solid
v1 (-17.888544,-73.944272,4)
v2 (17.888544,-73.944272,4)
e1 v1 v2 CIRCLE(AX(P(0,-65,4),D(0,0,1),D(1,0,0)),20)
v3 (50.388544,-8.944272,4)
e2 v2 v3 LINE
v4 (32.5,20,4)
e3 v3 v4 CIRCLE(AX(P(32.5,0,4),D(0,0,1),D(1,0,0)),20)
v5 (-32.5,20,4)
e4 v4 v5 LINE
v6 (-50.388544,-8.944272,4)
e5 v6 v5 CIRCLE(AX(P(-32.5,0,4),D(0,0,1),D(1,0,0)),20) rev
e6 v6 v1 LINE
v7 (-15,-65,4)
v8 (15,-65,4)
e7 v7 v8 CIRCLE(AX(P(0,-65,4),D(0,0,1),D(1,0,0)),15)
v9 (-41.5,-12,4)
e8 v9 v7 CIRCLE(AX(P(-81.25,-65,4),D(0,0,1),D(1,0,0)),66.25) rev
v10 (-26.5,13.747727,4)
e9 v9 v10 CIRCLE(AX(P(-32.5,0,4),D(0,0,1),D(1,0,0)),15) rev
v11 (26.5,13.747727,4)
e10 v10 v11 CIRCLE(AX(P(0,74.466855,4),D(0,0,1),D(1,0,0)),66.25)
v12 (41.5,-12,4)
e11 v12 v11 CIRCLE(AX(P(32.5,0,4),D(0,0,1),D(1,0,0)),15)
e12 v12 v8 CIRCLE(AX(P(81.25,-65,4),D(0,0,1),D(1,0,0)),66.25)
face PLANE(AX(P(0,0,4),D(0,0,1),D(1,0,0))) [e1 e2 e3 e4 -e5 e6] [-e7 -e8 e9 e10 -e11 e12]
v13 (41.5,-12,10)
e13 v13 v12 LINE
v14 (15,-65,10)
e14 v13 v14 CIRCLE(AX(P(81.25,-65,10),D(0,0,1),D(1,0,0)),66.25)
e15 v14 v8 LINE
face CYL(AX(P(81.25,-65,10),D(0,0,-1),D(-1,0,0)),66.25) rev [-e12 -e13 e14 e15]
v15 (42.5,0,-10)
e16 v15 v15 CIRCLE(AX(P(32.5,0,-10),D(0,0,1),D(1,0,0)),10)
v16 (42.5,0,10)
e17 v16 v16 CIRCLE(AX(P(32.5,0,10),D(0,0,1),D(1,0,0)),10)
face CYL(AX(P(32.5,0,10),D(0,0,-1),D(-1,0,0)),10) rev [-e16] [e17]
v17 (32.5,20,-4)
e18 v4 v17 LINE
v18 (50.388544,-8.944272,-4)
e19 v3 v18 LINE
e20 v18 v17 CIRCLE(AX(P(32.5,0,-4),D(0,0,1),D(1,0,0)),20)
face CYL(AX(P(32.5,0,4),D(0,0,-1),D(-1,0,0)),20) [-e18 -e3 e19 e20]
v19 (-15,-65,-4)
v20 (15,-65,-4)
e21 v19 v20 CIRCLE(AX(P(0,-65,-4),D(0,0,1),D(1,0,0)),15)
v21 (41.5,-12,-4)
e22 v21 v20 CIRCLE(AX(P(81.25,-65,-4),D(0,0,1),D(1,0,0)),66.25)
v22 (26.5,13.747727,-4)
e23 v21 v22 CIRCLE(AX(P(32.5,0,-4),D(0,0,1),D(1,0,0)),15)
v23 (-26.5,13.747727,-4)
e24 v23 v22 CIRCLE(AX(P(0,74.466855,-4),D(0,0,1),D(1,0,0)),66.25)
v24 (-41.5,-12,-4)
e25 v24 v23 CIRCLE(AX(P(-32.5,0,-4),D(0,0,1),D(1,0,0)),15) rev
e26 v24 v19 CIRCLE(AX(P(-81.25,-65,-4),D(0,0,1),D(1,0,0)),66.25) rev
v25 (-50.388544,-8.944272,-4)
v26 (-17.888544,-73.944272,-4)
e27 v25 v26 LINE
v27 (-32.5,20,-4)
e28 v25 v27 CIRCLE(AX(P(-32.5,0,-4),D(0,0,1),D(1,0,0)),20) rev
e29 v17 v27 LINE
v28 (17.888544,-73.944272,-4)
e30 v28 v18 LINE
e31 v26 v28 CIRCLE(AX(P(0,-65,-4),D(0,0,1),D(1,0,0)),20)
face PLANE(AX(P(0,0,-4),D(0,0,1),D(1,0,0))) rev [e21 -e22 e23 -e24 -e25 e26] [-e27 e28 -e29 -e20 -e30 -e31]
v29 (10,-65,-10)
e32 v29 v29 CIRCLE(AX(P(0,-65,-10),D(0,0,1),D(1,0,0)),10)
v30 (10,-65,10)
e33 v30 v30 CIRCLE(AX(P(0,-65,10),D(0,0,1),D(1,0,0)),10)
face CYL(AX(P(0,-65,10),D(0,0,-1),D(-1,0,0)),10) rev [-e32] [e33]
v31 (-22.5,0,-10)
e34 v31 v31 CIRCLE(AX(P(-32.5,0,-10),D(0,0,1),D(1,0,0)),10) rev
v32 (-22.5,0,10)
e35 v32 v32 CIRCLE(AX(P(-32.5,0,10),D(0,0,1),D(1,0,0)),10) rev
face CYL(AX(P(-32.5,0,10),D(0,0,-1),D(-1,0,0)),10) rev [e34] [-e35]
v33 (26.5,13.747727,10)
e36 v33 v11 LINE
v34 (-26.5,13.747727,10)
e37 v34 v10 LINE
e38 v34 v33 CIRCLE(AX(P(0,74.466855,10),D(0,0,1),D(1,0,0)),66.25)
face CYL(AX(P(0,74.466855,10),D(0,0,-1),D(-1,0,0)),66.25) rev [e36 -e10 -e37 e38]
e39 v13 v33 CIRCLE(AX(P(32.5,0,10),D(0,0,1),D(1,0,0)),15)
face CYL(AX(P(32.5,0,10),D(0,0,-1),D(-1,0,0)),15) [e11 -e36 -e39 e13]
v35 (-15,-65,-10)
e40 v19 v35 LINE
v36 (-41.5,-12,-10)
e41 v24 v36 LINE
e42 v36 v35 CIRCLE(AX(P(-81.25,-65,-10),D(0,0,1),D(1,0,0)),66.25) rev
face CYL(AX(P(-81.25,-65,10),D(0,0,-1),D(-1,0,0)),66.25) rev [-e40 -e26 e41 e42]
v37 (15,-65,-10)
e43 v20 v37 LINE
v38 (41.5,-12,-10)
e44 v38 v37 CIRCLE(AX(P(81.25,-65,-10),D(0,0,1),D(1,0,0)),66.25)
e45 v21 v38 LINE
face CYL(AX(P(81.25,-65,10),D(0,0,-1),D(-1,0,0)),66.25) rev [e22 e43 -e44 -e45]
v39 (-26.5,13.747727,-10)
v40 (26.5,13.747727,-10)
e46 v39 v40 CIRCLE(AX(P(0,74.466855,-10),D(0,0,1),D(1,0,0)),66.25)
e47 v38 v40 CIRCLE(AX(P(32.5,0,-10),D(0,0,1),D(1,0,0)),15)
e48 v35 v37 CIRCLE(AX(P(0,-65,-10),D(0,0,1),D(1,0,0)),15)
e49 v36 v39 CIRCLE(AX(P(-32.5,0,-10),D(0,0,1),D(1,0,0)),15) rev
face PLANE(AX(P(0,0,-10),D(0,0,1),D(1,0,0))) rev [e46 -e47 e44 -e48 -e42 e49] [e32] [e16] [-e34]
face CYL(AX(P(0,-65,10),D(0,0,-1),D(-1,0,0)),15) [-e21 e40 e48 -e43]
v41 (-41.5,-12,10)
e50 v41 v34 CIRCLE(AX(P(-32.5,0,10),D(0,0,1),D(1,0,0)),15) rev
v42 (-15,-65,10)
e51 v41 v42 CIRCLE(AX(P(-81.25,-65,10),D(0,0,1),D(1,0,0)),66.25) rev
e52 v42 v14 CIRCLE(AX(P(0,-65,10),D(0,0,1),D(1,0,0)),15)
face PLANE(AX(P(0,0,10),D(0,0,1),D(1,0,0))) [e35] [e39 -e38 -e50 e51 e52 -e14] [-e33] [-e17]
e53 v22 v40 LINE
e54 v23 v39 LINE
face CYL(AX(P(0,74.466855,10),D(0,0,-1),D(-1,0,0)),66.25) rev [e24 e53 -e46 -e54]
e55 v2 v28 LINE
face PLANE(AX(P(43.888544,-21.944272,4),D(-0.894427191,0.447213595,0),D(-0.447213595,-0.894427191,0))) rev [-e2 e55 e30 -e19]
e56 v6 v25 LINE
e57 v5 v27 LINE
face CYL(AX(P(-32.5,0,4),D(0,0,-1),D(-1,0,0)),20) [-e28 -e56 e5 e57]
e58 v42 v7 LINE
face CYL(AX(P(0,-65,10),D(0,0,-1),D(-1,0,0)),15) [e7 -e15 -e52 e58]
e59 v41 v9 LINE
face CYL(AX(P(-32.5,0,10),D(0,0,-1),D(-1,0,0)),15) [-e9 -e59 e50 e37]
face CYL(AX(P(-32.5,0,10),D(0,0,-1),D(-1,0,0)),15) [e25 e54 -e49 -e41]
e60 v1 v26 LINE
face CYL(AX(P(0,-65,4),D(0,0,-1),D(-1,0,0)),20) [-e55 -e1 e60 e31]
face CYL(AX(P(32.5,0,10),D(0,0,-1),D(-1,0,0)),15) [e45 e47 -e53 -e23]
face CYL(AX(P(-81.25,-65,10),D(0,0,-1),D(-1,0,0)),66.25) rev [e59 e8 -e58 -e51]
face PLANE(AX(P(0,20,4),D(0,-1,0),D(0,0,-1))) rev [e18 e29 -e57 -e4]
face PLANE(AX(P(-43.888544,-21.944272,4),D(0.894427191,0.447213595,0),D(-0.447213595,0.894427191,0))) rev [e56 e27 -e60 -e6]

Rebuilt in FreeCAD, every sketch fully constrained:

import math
import FreeCAD as App
import Part
import Sketcher
Q = App.Units.Quantity

doc = App.newDocument("Part")
body = doc.addObject("PartDesign::Body", "Body")

sketch1 = body.newObject("Sketcher::SketchObject", "Sketch")
sketch1.AttachmentSupport = (doc.getObject("XY_Plane"), [""])
sketch1.MapMode = "FlatFace"
sketch1.addGeometry(Part.ArcOfCircle(Part.Circle(App.Vector(81, -65, 0), App.Vector(0, 0, 1), 66), math.radians(127), math.radians(180)), False)
sketch1.addGeometry(Part.ArcOfCircle(Part.Circle(App.Vector(32, 0, 0), App.Vector(0, 0, 1), 15), math.radians(-53), math.radians(114)), False)
sketch1.addGeometry(Part.ArcOfCircle(Part.Circle(App.Vector(0, 74, 0), App.Vector(0, 0, 1), 66), math.radians(-114), math.radians(-66)), False)
sketch1.addGeometry(Part.ArcOfCircle(Part.Circle(App.Vector(-32, 0, 0), App.Vector(0, 0, 1), 15), math.radians(66), math.radians(233)), False)
sketch1.addGeometry(Part.ArcOfCircle(Part.Circle(App.Vector(-81, -65, 0), App.Vector(0, 0, 1), 66), math.radians(0), math.radians(53)), False)
sketch1.addGeometry(Part.ArcOfCircle(Part.Circle(App.Vector(0, -65, 0), App.Vector(0, 0, 1), 15), math.radians(180), math.radians(360)), False)
sketch1.addGeometry(Part.Circle(App.Vector(-32, 0, 0), App.Vector(0, 0, 1), 10), False)
sketch1.addGeometry(Part.Circle(App.Vector(32, 0, 0), App.Vector(0, 0, 1), 10), False)
sketch1.addGeometry(Part.Circle(App.Vector(0, -65, 0), App.Vector(0, 0, 1), 10), False)
sketch1.addConstraint(Sketcher.Constraint("Tangent", 0, 1, 1, 1))
sketch1.addConstraint(Sketcher.Constraint("Tangent", 1, 2, 2, 2))
sketch1.addConstraint(Sketcher.Constraint("Tangent", 2, 1, 3, 1))
sketch1.addConstraint(Sketcher.Constraint("Tangent", 3, 2, 4, 2))
sketch1.addConstraint(Sketcher.Constraint("Tangent", 4, 1, 5, 1))
sketch1.addConstraint(Sketcher.Constraint("Tangent", 5, 2, 0, 2))
sketch1.addConstraint(Sketcher.Constraint("Coincident", 6, 3, 3, 3))
sketch1.addConstraint(Sketcher.Constraint("Coincident", 7, 3, 1, 3))
sketch1.addConstraint(Sketcher.Constraint("Coincident", 8, 3, 5, 3))
sketch1.addConstraint(Sketcher.Constraint("Equal", 0, 2))
sketch1.addConstraint(Sketcher.Constraint("Equal", 1, 3))
sketch1.addConstraint(Sketcher.Constraint("Equal", 2, 4))
sketch1.addConstraint(Sketcher.Constraint("Equal", 3, 5))
sketch1.addConstraint(Sketcher.Constraint("Equal", 6, 7))
sketch1.addConstraint(Sketcher.Constraint("Equal", 7, 8))
sketch1.addConstraint(Sketcher.Constraint("Symmetric", 1, 3, 3, 3, -1, 1))
sketch1.addConstraint(Sketcher.Constraint("Symmetric", 0, 3, 4, 3, -2))
sketch1.addConstraint(Sketcher.Constraint("Horizontal", 4, 3, 5, 3))
sketch1.addConstraint(Sketcher.Constraint("Diameter", 6, Q("20 mm")))
sketch1.addConstraint(Sketcher.Constraint("Radius", 1, Q("15 mm")))
sketch1.addConstraint(Sketcher.Constraint("Radius", 0, Q("66.25 mm")))
sketch1.addConstraint(Sketcher.Constraint("DistanceY", 0, 3, -1, 1, Q("65 mm")))
pad1 = body.newObject("PartDesign::Pad", "Pad")
pad1.Profile = sketch1
pad1.Length = 20
pad1.Midplane = True

sketch2 = body.newObject("Sketcher::SketchObject", "Sketch001")
sketch2.AttachmentSupport = (doc.getObject("XY_Plane"), [""])
sketch2.MapMode = "FlatFace"
sketch2.addGeometry(Part.ArcOfCircle(Part.Circle(App.Vector(-32, 0, 0), App.Vector(0, 0, 1), 20), math.radians(90), math.radians(207)), False)
sketch2.addGeometry(Part.LineSegment(App.Vector(-50, -9, 0), App.Vector(-18, -74, 0)), False)
sketch2.addGeometry(Part.ArcOfCircle(Part.Circle(App.Vector(0, -65, 0), App.Vector(0, 0, 1), 20), math.radians(-153), math.radians(-27)), False)
sketch2.addGeometry(Part.LineSegment(App.Vector(18, -74, 0), App.Vector(50, -9, 0)), False)
sketch2.addGeometry(Part.ArcOfCircle(Part.Circle(App.Vector(32, 0, 0), App.Vector(0, 0, 1), 20), math.radians(-27), math.radians(90)), False)
sketch2.addGeometry(Part.LineSegment(App.Vector(32, 20, 0), App.Vector(-32, 20, 0)), False)
sketch2.addGeometry(Part.ArcOfCircle(Part.Circle(App.Vector(0, 74, 0), App.Vector(0, 0, 1), 66), math.radians(-114), math.radians(-66)), False)
sketch2.addGeometry(Part.ArcOfCircle(Part.Circle(App.Vector(32, 0, 0), App.Vector(0, 0, 1), 15), math.radians(-53), math.radians(114)), False)
sketch2.addGeometry(Part.ArcOfCircle(Part.Circle(App.Vector(81, -65, 0), App.Vector(0, 0, 1), 66), math.radians(127), math.radians(180)), False)
sketch2.addGeometry(Part.ArcOfCircle(Part.Circle(App.Vector(0, -65, 0), App.Vector(0, 0, 1), 15), math.radians(180), math.radians(360)), False)
sketch2.addGeometry(Part.ArcOfCircle(Part.Circle(App.Vector(-81, -65, 0), App.Vector(0, 0, 1), 66), math.radians(0), math.radians(53)), False)
sketch2.addGeometry(Part.ArcOfCircle(Part.Circle(App.Vector(-32, 0, 0), App.Vector(0, 0, 1), 15), math.radians(66), math.radians(233)), False)
sketch2.addConstraint(Sketcher.Constraint("Tangent", 0, 2, 1, 1))
sketch2.addConstraint(Sketcher.Constraint("Tangent", 1, 2, 2, 1))
sketch2.addConstraint(Sketcher.Constraint("Tangent", 2, 2, 3, 1))
sketch2.addConstraint(Sketcher.Constraint("Tangent", 3, 2, 4, 1))
sketch2.addConstraint(Sketcher.Constraint("Tangent", 4, 2, 5, 1))
sketch2.addConstraint(Sketcher.Constraint("Tangent", 5, 2, 0, 1))
sketch2.addConstraint(Sketcher.Constraint("Tangent", 6, 2, 7, 2))
sketch2.addConstraint(Sketcher.Constraint("Tangent", 7, 1, 8, 1))
sketch2.addConstraint(Sketcher.Constraint("Tangent", 8, 2, 9, 2))
sketch2.addConstraint(Sketcher.Constraint("Tangent", 9, 1, 10, 1))
sketch2.addConstraint(Sketcher.Constraint("Tangent", 10, 2, 11, 2))
sketch2.addConstraint(Sketcher.Constraint("Tangent", 11, 1, 6, 1))
sketch2.addConstraint(Sketcher.Constraint("Horizontal", 5))
sketch2.addConstraint(Sketcher.Constraint("Coincident", 7, 3, 4, 3))
sketch2.addConstraint(Sketcher.Constraint("Coincident", 9, 3, 2, 3))
sketch2.addConstraint(Sketcher.Constraint("Coincident", 11, 3, 0, 3))
sketch2.addConstraint(Sketcher.Constraint("Equal", 0, 2))
sketch2.addConstraint(Sketcher.Constraint("Equal", 2, 4))
sketch2.addConstraint(Sketcher.Constraint("Equal", 6, 8))
sketch2.addConstraint(Sketcher.Constraint("Equal", 7, 9))
sketch2.addConstraint(Sketcher.Constraint("Equal", 8, 10))
sketch2.addConstraint(Sketcher.Constraint("Equal", 9, 11))
sketch2.addConstraint(Sketcher.Constraint("Symmetric", 0, 3, 4, 3, -1, 1))
sketch2.addConstraint(Sketcher.Constraint("PointOnObject", 2, 3, -2))
sketch2.addConstraint(Sketcher.Constraint("Horizontal", 2, 3, 8, 3))
sketch2.addConstraint(Sketcher.Constraint("Radius", 0, Q("20 mm")))
sketch2.addConstraint(Sketcher.Constraint("Radius", 7, Q("15 mm")))
sketch2.addConstraint(Sketcher.Constraint("DistanceX", 5, 2, 5, 1, Q("65 mm")))
sketch2.addConstraint(Sketcher.Constraint("Radius", 6, Q("66.25 mm")))
pad2 = body.newObject("PartDesign::Pad", "Pad001")
pad2.Profile = sketch2
pad2.Length = 8
pad2.Midplane = True

doc.recompute()
